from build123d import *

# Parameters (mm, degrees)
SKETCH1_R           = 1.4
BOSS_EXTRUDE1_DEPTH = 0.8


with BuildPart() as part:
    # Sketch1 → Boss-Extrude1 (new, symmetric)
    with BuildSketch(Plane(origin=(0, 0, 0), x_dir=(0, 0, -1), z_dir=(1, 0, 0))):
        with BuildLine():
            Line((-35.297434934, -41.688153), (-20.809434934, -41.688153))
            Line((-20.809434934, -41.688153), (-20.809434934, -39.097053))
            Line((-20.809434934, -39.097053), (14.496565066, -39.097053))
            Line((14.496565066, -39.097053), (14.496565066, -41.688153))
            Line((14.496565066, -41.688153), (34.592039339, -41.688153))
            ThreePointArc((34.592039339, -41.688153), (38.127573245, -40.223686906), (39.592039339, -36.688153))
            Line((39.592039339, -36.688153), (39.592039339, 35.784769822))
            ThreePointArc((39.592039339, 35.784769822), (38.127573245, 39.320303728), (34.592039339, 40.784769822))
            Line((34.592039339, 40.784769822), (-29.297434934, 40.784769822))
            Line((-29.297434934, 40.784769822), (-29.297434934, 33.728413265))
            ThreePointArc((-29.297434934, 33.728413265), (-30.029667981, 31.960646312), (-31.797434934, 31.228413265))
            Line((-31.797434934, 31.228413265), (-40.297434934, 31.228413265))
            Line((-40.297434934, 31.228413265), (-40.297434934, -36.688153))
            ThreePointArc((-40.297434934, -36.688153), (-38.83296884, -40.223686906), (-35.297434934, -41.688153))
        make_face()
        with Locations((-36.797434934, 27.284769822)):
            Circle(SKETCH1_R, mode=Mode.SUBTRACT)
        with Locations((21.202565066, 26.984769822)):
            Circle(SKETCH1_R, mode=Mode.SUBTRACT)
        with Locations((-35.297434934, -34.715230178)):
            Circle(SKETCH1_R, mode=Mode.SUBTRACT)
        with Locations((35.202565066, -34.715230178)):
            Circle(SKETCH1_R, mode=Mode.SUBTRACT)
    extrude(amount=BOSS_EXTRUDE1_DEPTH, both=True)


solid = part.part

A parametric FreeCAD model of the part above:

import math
import FreeCAD as App
import Part
import Sketcher

V = App.Vector

doc = App.newDocument("Part")
body = doc.addObject("PartDesign::Body", "Body")

# Sketch on YZ plane
sketch1 = body.newObject("Sketcher::SketchObject", "Sketch")
sketch1.AttachmentSupport = (doc.getObject("YZ_Plane"), [""])
sketch1.MapMode = "FlatFace"
sketch1.addGeometry([
    Part.LineSegment(V(-41.688153, 35.297435, 0), V(-41.688153, 20.809435, 0)),  # 0
    Part.LineSegment(V(-41.688153, 20.809435, 0), V(-39.097053, 20.809435, 0)),  # 1
    Part.LineSegment(V(-39.097053, 20.809435, 0), V(-39.097053, -14.496565, 0)),  # 2
    Part.LineSegment(V(-39.097053, -14.496565, 0), V(-41.688153, -14.496565, 0)),  # 3
    Part.LineSegment(V(-41.688153, -14.496565, 0), V(-41.688153, -34.592039, 0)),  # 4
    Part.ArcOfCircle(Part.Circle(V(-36.688153, -34.592039, 0), V(0, 0, 1), 5), math.radians(180), math.radians(270)),  # 5
    Part.LineSegment(V(-36.688153, -39.592039, 0), V(35.78477, -39.592039, 0)),  # 6
    Part.ArcOfCircle(Part.Circle(V(35.78477, -34.592039, 0), V(0, 0, 1), 5), math.radians(-90), math.radians(0)),  # 7
    Part.LineSegment(V(40.78477, -34.592039, 0), V(40.78477, 29.297435, 0)),  # 8
    Part.LineSegment(V(40.78477, 29.297435, 0), V(33.728413, 29.297435, 0)),  # 9
    Part.ArcOfCircle(Part.Circle(V(33.728413, 31.797435, 0), V(0, 0, 1), 2.5), math.radians(180), math.radians(270)),  # 10
    Part.LineSegment(V(31.228413, 31.797435, 0), V(31.228413, 40.297435, 0)),  # 11
    Part.LineSegment(V(31.228413, 40.297435, 0), V(-36.688153, 40.297435, 0)),  # 12
    Part.ArcOfCircle(Part.Circle(V(-36.688153, 35.297435, 0), V(0, 0, 1), 5), math.radians(90), math.radians(180)),  # 13
    Part.Circle(V(-34.71523, 35.297435, 0), V(0, 0, 1), 1.4),  # 14
    Part.Circle(V(-34.71523, -35.202565, 0), V(0, 0, 1), 1.4),  # 15
    Part.Circle(V(27.28477, 36.797435, 0), V(0, 0, 1), 1.4),  # 16
    Part.Circle(V(26.98477, -21.202565, 0), V(0, 0, 1), 1.4),  # 17
], False)
sketch1.addConstraint([
    Sketcher.Constraint("Coincident", 0, 2, 1, 1),
    Sketcher.Constraint("Coincident", 1, 2, 2, 1),
    Sketcher.Constraint("Coincident", 2, 2, 3, 1),
    Sketcher.Constraint("Coincident", 3, 2, 4, 1),
    Sketcher.Constraint("Tangent", 4, 2, 5, 1),
    Sketcher.Constraint("Tangent", 5, 2, 6, 1),
    Sketcher.Constraint("Tangent", 6, 2, 7, 1),
    Sketcher.Constraint("Tangent", 7, 2, 8, 1),
    Sketcher.Constraint("Coincident", 8, 2, 9, 1),
    Sketcher.Constraint("Tangent", 9, 2, 10, 2),
    Sketcher.Constraint("Tangent", 10, 1, 11, 1),
    Sketcher.Constraint("Coincident", 11, 2, 12, 1),
    Sketcher.Constraint("Tangent", 12, 2, 13, 1),
    Sketcher.Constraint("Tangent", 13, 2, 0, 1),
    Sketcher.Constraint("Vertical", 0),
    Sketcher.Constraint("Horizontal", 1),
    Sketcher.Constraint("Vertical", 2),
    Sketcher.Constraint("Horizontal", 3),
    Sketcher.Constraint("Vertical", 4),
    Sketcher.Constraint("Horizontal", 6),
    Sketcher.Constraint("Vertical", 8),
    Sketcher.Constraint("Horizontal", 9),
    Sketcher.Constraint("Vertical", 11),
    Sketcher.Constraint("Horizontal", 12),
    Sketcher.Constraint("Equal", 5, 7),
    Sketcher.Constraint("Equal", 7, 13),
    Sketcher.Constraint("Equal", 14, 15),
    Sketcher.Constraint("Equal", 15, 16),
    Sketcher.Constraint("Equal", 16, 17),
    Sketcher.Constraint("Horizontal", 13, 3, 14, 3),
    Sketcher.Constraint("Vertical", 5, 3, 13, 3),
    Sketcher.Constraint("Vertical", 14, 3, 15, 3),
    Sketcher.Constraint("Radius", 5, 5.0),
    Sketcher.Constraint("Diameter", 14, 2.8),
    Sketcher.Constraint("Radius", 10, 2.5),
    Sketcher.Constraint("DistanceY", 11, 1, 11, 2, 8.5),
    Sketcher.Constraint("DistanceY", 15, 3, 10, 3, 67.0),
    Sketcher.Constraint("DistanceY", 10, 3, 16, 3, 5.0),
    Sketcher.Constraint("DistanceX", 14, 3, 16, 3, 62.0),
    Sketcher.Constraint("DistanceY", 17, 3, 10, 3, 53.0),
    Sketcher.Constraint("DistanceX", 14, 3, 7, 3, 70.5),
    Sketcher.Constraint("DistanceX", 17, 3, 7, 3, 8.8),
    Sketcher.Constraint("DistanceY", 0, 2, 0, 1, 14.488),
    Sketcher.Constraint("DistanceY", 2, 2, 2, 1, 35.306),
    Sketcher.Constraint("DistanceX", 1, 1, 1, 2, 2.5911),
    Sketcher.Constraint("DistanceX", 6, 1, 6, 2, 72.472923),
    Sketcher.Constraint("DistanceX", 9, 2, 9, 1, 7.056357),
    Sketcher.Constraint("DistanceY", 4, 2, 4, 1, 20.095474),
    Sketcher.Constraint("DistanceY", 5, 3, -1, 1, 34.592039),
    Sketcher.Constraint("DistanceX", -1, 1, 7, 3, 35.78477),
])
pad1 = body.newObject("PartDesign::Pad", "Pad")
pad1.Profile = sketch1
pad1.Length = 1.6
pad1.Midplane = True

doc.recompute()
